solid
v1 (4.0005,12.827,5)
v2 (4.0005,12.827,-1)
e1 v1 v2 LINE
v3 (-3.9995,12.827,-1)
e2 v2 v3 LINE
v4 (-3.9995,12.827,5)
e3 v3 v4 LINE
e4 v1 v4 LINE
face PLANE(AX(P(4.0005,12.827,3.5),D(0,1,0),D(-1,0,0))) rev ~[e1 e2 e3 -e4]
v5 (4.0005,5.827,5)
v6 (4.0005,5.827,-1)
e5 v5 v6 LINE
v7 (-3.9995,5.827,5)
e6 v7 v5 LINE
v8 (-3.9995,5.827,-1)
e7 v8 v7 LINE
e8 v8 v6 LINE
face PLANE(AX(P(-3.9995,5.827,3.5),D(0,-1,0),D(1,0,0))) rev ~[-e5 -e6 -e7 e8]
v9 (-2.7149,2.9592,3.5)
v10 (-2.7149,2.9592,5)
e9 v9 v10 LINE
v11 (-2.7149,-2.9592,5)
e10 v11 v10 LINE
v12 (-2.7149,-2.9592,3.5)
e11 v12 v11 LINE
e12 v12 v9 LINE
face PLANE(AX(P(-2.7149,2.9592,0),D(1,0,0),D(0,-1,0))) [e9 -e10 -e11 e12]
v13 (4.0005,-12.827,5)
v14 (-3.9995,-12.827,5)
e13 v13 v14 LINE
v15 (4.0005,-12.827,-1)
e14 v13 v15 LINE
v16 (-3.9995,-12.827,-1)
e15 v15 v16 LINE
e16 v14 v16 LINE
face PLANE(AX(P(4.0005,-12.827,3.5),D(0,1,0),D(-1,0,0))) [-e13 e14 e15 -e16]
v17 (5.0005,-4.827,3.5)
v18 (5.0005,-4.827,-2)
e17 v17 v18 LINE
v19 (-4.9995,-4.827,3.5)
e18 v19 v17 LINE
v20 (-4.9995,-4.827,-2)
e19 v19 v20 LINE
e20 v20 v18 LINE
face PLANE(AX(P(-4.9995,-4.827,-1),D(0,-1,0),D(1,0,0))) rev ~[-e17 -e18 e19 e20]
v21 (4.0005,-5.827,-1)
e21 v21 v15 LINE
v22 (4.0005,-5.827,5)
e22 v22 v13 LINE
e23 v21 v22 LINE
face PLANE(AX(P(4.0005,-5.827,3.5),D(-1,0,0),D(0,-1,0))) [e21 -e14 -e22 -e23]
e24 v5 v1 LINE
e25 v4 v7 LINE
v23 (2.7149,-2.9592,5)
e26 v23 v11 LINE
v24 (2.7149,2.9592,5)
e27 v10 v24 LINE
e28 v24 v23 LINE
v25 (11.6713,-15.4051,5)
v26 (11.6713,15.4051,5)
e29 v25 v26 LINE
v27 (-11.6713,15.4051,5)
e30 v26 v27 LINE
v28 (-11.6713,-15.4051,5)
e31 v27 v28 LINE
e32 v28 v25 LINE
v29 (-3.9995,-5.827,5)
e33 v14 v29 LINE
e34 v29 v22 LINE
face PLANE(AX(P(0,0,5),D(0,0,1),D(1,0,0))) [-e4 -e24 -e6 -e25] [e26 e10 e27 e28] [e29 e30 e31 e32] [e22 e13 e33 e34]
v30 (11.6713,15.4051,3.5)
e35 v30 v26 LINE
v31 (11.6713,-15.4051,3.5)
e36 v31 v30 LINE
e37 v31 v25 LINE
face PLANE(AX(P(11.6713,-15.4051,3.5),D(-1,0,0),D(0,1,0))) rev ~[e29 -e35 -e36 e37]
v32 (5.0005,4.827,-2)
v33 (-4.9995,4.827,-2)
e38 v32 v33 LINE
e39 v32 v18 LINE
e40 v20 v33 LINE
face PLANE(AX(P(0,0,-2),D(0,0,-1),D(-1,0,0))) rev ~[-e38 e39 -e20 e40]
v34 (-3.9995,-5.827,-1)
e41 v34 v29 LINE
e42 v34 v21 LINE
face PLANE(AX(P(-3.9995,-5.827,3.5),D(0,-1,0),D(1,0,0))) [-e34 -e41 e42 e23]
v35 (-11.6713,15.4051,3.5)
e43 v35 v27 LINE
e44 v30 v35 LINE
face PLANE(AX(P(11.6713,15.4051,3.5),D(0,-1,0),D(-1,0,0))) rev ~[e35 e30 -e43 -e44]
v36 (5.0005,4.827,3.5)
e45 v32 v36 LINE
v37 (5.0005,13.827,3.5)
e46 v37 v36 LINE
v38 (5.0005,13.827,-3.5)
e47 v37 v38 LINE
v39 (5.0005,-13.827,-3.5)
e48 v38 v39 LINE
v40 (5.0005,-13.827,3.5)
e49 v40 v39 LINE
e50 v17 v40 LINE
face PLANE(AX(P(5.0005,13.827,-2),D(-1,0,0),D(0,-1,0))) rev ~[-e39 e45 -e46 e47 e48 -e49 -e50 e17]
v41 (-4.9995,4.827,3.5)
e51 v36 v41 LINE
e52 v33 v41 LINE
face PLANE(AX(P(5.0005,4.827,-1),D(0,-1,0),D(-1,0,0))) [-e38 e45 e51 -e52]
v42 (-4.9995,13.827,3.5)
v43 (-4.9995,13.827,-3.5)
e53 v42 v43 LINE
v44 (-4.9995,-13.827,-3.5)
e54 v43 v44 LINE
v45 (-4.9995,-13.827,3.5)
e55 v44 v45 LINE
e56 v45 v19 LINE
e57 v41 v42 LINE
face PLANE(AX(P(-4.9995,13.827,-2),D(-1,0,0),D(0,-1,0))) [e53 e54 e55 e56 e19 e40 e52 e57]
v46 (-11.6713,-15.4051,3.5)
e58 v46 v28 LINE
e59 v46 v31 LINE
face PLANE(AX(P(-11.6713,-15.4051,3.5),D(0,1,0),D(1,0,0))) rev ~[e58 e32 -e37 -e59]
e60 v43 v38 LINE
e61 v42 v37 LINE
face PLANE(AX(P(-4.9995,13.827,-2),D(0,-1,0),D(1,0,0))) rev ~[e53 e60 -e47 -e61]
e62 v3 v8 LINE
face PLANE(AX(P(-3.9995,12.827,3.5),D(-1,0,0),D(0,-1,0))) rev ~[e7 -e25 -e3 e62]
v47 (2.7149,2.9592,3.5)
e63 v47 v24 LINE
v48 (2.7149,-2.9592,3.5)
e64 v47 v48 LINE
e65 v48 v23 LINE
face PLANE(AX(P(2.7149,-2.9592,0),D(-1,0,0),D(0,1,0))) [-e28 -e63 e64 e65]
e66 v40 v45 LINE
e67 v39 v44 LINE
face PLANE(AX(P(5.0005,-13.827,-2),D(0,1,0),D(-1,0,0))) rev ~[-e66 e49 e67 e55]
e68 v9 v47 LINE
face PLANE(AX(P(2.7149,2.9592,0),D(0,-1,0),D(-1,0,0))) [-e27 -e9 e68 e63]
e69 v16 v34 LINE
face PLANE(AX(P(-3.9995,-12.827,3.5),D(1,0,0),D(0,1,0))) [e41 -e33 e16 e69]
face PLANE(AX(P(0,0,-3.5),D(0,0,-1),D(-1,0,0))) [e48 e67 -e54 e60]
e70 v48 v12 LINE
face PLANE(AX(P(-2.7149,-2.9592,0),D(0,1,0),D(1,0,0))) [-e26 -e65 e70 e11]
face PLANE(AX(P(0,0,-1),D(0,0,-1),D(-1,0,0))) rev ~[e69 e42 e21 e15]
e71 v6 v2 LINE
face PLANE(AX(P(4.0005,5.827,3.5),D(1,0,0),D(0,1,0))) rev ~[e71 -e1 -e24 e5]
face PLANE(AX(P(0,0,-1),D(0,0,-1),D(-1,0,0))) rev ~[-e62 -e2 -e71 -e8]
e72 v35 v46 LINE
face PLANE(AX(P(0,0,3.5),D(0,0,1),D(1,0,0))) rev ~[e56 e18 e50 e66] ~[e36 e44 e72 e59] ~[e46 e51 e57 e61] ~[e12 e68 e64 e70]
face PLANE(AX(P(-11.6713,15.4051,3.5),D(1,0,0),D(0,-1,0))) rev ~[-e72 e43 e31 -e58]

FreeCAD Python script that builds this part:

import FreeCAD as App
import Part
import Sketcher
from FreeCAD import Vector
Q = App.Units.Quantity

doc = App.newDocument("Part")
body = doc.addObject("PartDesign::Body", "Body")

# Sketch on XY plane
sketch1 = body.newObject("Sketcher::SketchObject", "Sketch")
sketch1.AttachmentSupport = (doc.getObject("XY_Plane"), [""])
sketch1.MapMode = "FlatFace"
sketch1.AttachmentOffset = App.Placement(Vector(0, 0, 3.5), App.Rotation())
sketch1.addGeometry(Part.LineSegment(Vector(-12, 15, 0), Vector(-12, -15, 0)), False)
sketch1.addGeometry(Part.LineSegment(Vector(-12, -15, 0), Vector(12, -15, 0)), False)
sketch1.addGeometry(Part.LineSegment(Vector(12, -15, 0), Vector(12, 15, 0)), False)
sketch1.addGeometry(Part.LineSegment(Vector(12, 15, 0), Vector(-12, 15, 0)), False)
sketch1.addConstraint(Sketcher.Constraint("Coincident", 0, 2, 1, 1))
sketch1.addConstraint(Sketcher.Constraint("Coincident", 1, 2, 2, 1))
sketch1.addConstraint(Sketcher.Constraint("Coincident", 2, 2, 3, 1))
sketch1.addConstraint(Sketcher.Constraint("Coincident", 3, 2, 0, 1))
sketch1.addConstraint(Sketcher.Constraint("Vertical", 0))
sketch1.addConstraint(Sketcher.Constraint("Horizontal", 1))
sketch1.addConstraint(Sketcher.Constraint("Vertical", 2))
sketch1.addConstraint(Sketcher.Constraint("Horizontal", 3))
sketch1.addConstraint(Sketcher.Constraint("Symmetric", 0, 2, 2, 2, -1, 1))
sketch1.addConstraint(Sketcher.Constraint("DistanceX", 1, 1, 1, 2, Q("23.3426 mm")))
sketch1.addConstraint(Sketcher.Constraint("DistanceY", 0, 2, 0, 1, Q("30.8102 mm")))
pad1 = body.newObject("PartDesign::Pad", "Pad")
pad1.Profile = sketch1
pad1.Length = 1.5

# Sketch on XY plane
sketch2 = body.newObject("Sketcher::SketchObject", "Sketch001")
sketch2.AttachmentSupport = (doc.getObject("XY_Plane"), [""])
sketch2.MapMode = "FlatFace"
sketch2.addGeometry(Part.LineSegment(Vector(-3, 3, 0), Vector(3, 3, 0)), False)
sketch2.addGeometry(Part.LineSegment(Vector(3, 3, 0), Vector(3, -3, 0)), False)
sketch2.addGeometry(Part.LineSegment(Vector(3, -3, 0), Vector(-3, -3, 0)), False)
sketch2.addGeometry(Part.LineSegment(Vector(-3, -3, 0), Vector(-3, 3, 0)), False)
sketch2.addConstraint(Sketcher.Constraint("Coincident", 0, 2, 1, 1))
sketch2.addConstraint(Sketcher.Constraint("Coincident", 1, 2, 2, 1))
sketch2.addConstraint(Sketcher.Constraint("Coincident", 2, 2, 3, 1))
sketch2.addConstraint(Sketcher.Constraint("Coincident", 3, 2, 0, 1))
sketch2.addConstraint(Sketcher.Constraint("Horizontal", 0))
sketch2.addConstraint(Sketcher.Constraint("Vertical", 1))
sketch2.addConstraint(Sketcher.Constraint("Horizontal", 2))
sketch2.addConstraint(Sketcher.Constraint("Vertical", 3))
sketch2.addConstraint(Sketcher.Constraint("Symmetric", 0, 2, 2, 2, -1, 1))
sketch2.addConstraint(Sketcher.Constraint("DistanceX", 0, 1, 0, 2, Q("5.4298 mm")))
sketch2.addConstraint(Sketcher.Constraint("DistanceY", 1, 2, 1, 1, Q("5.9184 mm")))
pocket1 = body.newObject("PartDesign::Pocket", "Pocket")
pocket1.Profile = sketch2
pocket1.Length = 6
pocket1.Reversed = True

# Sketch on XY plane
sketch3 = body.newObject("Sketcher::SketchObject", "Sketch002")
sketch3.AttachmentSupport = (doc.getObject("XY_Plane"), [""])
sketch3.MapMode = "FlatFace"
sketch3.addGeometry(Part.LineSegment(Vector(-3.6, 12.7, 0), Vector(3.4, 12.7, 0)), False)
sketch3.addGeometry(Part.LineSegment(Vector(3.4, 12.7, 0), Vector(3.4, 7.7, 0)), False)
sketch3.addGeometry(Part.LineSegment(Vector(3.4, 7.7, 0), Vector(-3.6, 7.7, 0)), False)
sketch3.addGeometry(Part.LineSegment(Vector(-3.6, 7.7, 0), Vector(-3.6, 12.7, 0)), False)
sketch3.addGeometry(Part.LineSegment(Vector(3.4, -12.7, 0), Vector(-3.6, -12.7, 0)), False)
sketch3.addGeometry(Part.LineSegment(Vector(-3.6, -12.7, 0), Vector(-3.6, -7.7, 0)), False)
sketch3.addGeometry(Part.LineSegment(Vector(-3.6, -7.7, 0), Vector(3.4, -7.7, 0)), False)
sketch3.addGeometry(Part.LineSegment(Vector(3.4, -7.7, 0), Vector(3.4, -12.7, 0)), False)
sketch3.addConstraint(Sketcher.Constraint("Coincident", 0, 2, 1, 1))
sketch3.addConstraint(Sketcher.Constraint("Coincident", 1, 2, 2, 1))
sketch3.addConstraint(Sketcher.Constraint("Coincident", 2, 2, 3, 1))
sketch3.addConstraint(Sketcher.Constraint("Coincident", 3, 2, 0, 1))
sketch3.addConstraint(Sketcher.Constraint("Coincident", 4, 2, 5, 1))
sketch3.addConstraint(Sketcher.Constraint("Coincident", 5, 2, 6, 1))
sketch3.addConstraint(Sketcher.Constraint("Coincident", 6, 2, 7, 1))
sketch3.addConstraint(Sketcher.Constraint("Coincident", 7, 2, 4, 1))
sketch3.addConstraint(Sketcher.Constraint("Horizontal", 0))
sketch3.addConstraint(Sketcher.Constraint("Vertical", 1))
sketch3.addConstraint(Sketcher.Constraint("Horizontal", 2))
sketch3.addConstraint(Sketcher.Constraint("Vertical", 3))
sketch3.addConstraint(Sketcher.Constraint("Horizontal", 4))
sketch3.addConstraint(Sketcher.Constraint("Vertical", 5))
sketch3.addConstraint(Sketcher.Constraint("Horizontal", 6))
sketch3.addConstraint(Sketcher.Constraint("Vertical", 7))
sketch3.addConstraint(Sketcher.Constraint("Symmetric", 3, 2, 4, 2, -1))
sketch3.addConstraint(Sketcher.Constraint("Symmetric", 1, 2, 6, 2, -1))
sketch3.addConstraint(Sketcher.Constraint("DistanceX", 0, 1, 0, 2, Q("7 mm")))
sketch3.addConstraint(Sketcher.Constraint("DistanceY", 1, 2, 1, 1, Q("5 mm")))
sketch3.addConstraint(Sketcher.Constraint("DistanceY", -1, 1, 0, 2, Q("12.7 mm")))
sketch3.addConstraint(Sketcher.Constraint("DistanceX", -1, 1, 0, 2, Q("3.3528 mm")))
pocket2 = body.newObject("PartDesign::Pocket", "Pocket001")
pocket2.Profile = sketch3
pocket2.Length = 3.5
pocket2.Reversed = True

# Sketch on XY plane
sketch4 = body.newObject("Sketcher::SketchObject", "Sketch003")
sketch4.AttachmentSupport = (doc.getObject("XY_Plane"), [""])
sketch4.MapMode = "FlatFace"
sketch4.AttachmentOffset = App.Placement(Vector(0, 0, 3.5), App.Rotation())
sketch4.addGeometry(Part.LineSegment(Vector(4, -6, 0), Vector(4, -13, 0)), False)
sketch4.addGeometry(Part.LineSegment(Vector(4, -13, 0), Vector(-4, -13, 0)), False)
sketch4.addGeometry(Part.LineSegment(Vector(-4, -13, 0), Vector(-4, -6, 0)), False)
sketch4.addGeometry(Part.LineSegment(Vector(-4, -6, 0), Vector(4, -6, 0)), False)
sketch4.addGeometry(Part.LineSegment(Vector(-4, 13, 0), Vector(4, 13, 0)), False)
sketch4.addGeometry(Part.LineSegment(Vector(4, 13, 0), Vector(4, 6, 0)), False)
sketch4.addGeometry(Part.LineSegment(Vector(4, 6, 0), Vector(-4, 6, 0)), False)
sketch4.addGeometry(Part.LineSegment(Vector(-4, 6, 0), Vector(-4, 13, 0)), False)
sketch4.addConstraint(Sketcher.Constraint("Coincident", 0, 2, 1, 1))
sketch4.addConstraint(Sketcher.Constraint("Coincident", 1, 2, 2, 1))
sketch4.addConstraint(Sketcher.Constraint("Coincident", 2, 2, 3, 1))
sketch4.addConstraint(Sketcher.Constraint("Coincident", 3, 2, 0, 1))
sketch4.addConstraint(Sketcher.Constraint("Coincident", 4, 2, 5, 1))
sketch4.addConstraint(Sketcher.Constraint("Coincident", 5, 2, 6, 1))
sketch4.addConstraint(Sketcher.Constraint("Coincident", 6, 2, 7, 1))
sketch4.addConstraint(Sketcher.Constraint("Coincident", 7, 2, 4, 1))
sketch4.addConstraint(Sketcher.Constraint("Vertical", 0))
sketch4.addConstraint(Sketcher.Constraint("Horizontal", 1))
sketch4.addConstraint(Sketcher.Constraint("Vertical", 2))
sketch4.addConstraint(Sketcher.Constraint("Horizontal", 3))
sketch4.addConstraint(Sketcher.Constraint("Horizontal", 4))
sketch4.addConstraint(Sketcher.Constraint("Vertical", 5))
sketch4.addConstraint(Sketcher.Constraint("Horizontal", 6))
sketch4.addConstraint(Sketcher.Constraint("Vertical", 7))
sketch4.addConstraint(Sketcher.Constraint("Symmetric", 0, 2, 4, 2, -1))
sketch4.addConstraint(Sketcher.Constraint("Symmetric", 2, 2, 6, 2, -1))
sketch4.addConstraint(Sketcher.Constraint("DistanceX", 1, 2, 1, 1, Q("8 mm")))
sketch4.addConstraint(Sketcher.Constraint("DistanceY", 0, 2, 0, 1, Q("7 mm")))
sketch4.addConstraint(Sketcher.Constraint("DistanceY", 0, 2, 4, 2, Q("25.654 mm")))
sketch4.addConstraint(Sketcher.Constraint("DistanceX", -1, 1, 0, 2, Q("4.0005 mm")))
pad2 = body.newObject("PartDesign::Pad", "Pad001")
pad2.Profile = sketch4
pad2.Length = 4.5
pad2.Reversed = True

# Sketch on XY plane
sketch5 = body.newObject("Sketcher::SketchObject", "Sketch004")
sketch5.AttachmentSupport = (doc.getObject("XY_Plane"), [""])
sketch5.MapMode = "FlatFace"
sketch5.AttachmentOffset = App.Placement(Vector(0, 0, -1), App.Rotation())
sketch5.addGeometry(Part.LineSegment(Vector(-5, 5, 0), Vector(-5, 14, 0)), False)
sketch5.addGeometry(Part.LineSegment(Vector(-5, 14, 0), Vector(5, 14, 0)), False)
sketch5.addGeometry(Part.LineSegment(Vector(5, 14, 0), Vector(5, 5, 0)), False)
sketch5.addGeometry(Part.LineSegment(Vector(5, 5, 0), Vector(-5, 5, 0)), False)
sketch5.addGeometry(Part.LineSegment(Vector(-5, -14, 0), Vector(-5, -5, 0)), False)
sketch5.addGeometry(Part.LineSegment(Vector(-5, -5, 0), Vector(5, -5, 0)), False)
sketch5.addGeometry(Part.LineSegment(Vector(5, -5, 0), Vector(5, -14, 0)), False)
sketch5.addGeometry(Part.LineSegment(Vector(5, -14, 0), Vector(-5, -14, 0)), False)
sketch5.addConstraint(Sketcher.Constraint("Coincident", 0, 2, 1, 1))
sketch5.addConstraint(Sketcher.Constraint("Coincident", 1, 2, 2, 1))
sketch5.addConstraint(Sketcher.Constraint("Coincident", 2, 2, 3, 1))
sketch5.addConstraint(Sketcher.Constraint("Coincident", 3, 2, 0, 1))
sketch5.addConstraint(Sketcher.Constraint("Coincident", 4, 2, 5, 1))
sketch5.addConstraint(Sketcher.Constraint("Coincident", 5, 2, 6, 1))
sketch5.addConstraint(Sketcher.Constraint("Coincident", 6, 2, 7, 1))
sketch5.addConstraint(Sketcher.Constraint("Coincident", 7, 2, 4, 1))
sketch5.addConstraint(Sketcher.Constraint("Vertical", 0))
sketch5.addConstraint(Sketcher.Constraint("Horizontal", 1))
sketch5.addConstraint(Sketcher.Constraint("Vertical", 2))
sketch5.addConstraint(Sketcher.Constraint("Horizontal", 3))
sketch5.addConstraint(Sketcher.Constraint("Vertical", 4))
sketch5.addConstraint(Sketcher.Constraint("Horizontal", 5))
sketch5.addConstraint(Sketcher.Constraint("Vertical", 6))
sketch5.addConstraint(Sketcher.Constraint("Horizontal", 7))
sketch5.addConstraint(Sketcher.Constraint("Symmetric", 3, 2, 4, 2, -1))
sketch5.addConstraint(Sketcher.Constraint("Symmetric", 1, 2, 6, 2, -1))
sketch5.addConstraint(Sketcher.Constraint("DistanceX", 1, 1, 1, 2, Q("10 mm")))
sketch5.addConstraint(Sketcher.Constraint("DistanceY", 0, 1, 0, 2, Q("9 mm")))
sketch5.addConstraint(Sketcher.Constraint("DistanceY", -1, 1, 0, 2, Q("13.827 mm")))
sketch5.addConstraint(Sketcher.Constraint("DistanceX", 0, 2, -1, 1, Q("4.9995 mm")))
pad3 = body.newObject("PartDesign::Pad", "Pad002")
pad3.Profile = sketch5
pad3.Type = "TwoLengths"
pad3.Length = 1
pad3.Length2 = 4.5
pad3.Reversed = True

# Sketch on XY plane
sketch6 = body.newObject("Sketcher::SketchObject", "Sketch005")
sketch6.AttachmentSupport = (doc.getObject("XY_Plane"), [""])
sketch6.MapMode = "FlatFace"
sketch6.AttachmentOffset = App.Placement(Vector(0, 0, 3.5), App.Rotation())
sketch6.addGeometry(Part.LineSegment(Vector(4, -6, 0), Vector(4, -13, 0)), False)
sketch6.addGeometry(Part.LineSegment(Vector(4, -13, 0), Vector(-4, -13, 0)), False)
sketch6.addGeometry(Part.LineSegment(Vector(-4, -13, 0), Vector(-4, -6, 0)), False)
sketch6.addGeometry(Part.LineSegment(Vector(-4, -6, 0), Vector(4, -6, 0)), False)
sketch6.addGeometry(Part.LineSegment(Vector(-4, 13, 0), Vector(4, 13, 0)), False)
sketch6.addGeometry(Part.LineSegment(Vector(4, 13, 0), Vector(4, 6, 0)), False)
sketch6.addGeometry(Part.LineSegment(Vector(4, 6, 0), Vector(-4, 6, 0)), False)
sketch6.addGeometry(Part.LineSegment(Vector(-4, 6, 0), Vector(-4, 13, 0)), False)
sketch6.addConstraint(Sketcher.Constraint("Coincident", 0, 2, 1, 1))
sketch6.addConstraint(Sketcher.Constraint("Coincident", 1, 2, 2, 1))
sketch6.addConstraint(Sketcher.Constraint("Coincident", 2, 2, 3, 1))
sketch6.addConstraint(Sketcher.Constraint("Coincident", 3, 2, 0, 1))
sketch6.addConstraint(Sketcher.Constraint("Coincident", 4, 2, 5, 1))
sketch6.addConstraint(Sketcher.Constraint("Coincident", 5, 2, 6, 1))
sketch6.addConstraint(Sketcher.Constraint("Coincident", 6, 2, 7, 1))
sketch6.addConstraint(Sketcher.Constraint("Coincident", 7, 2, 4, 1))
sketch6.addConstraint(Sketcher.Constraint("Vertical", 0))
sketch6.addConstraint(Sketcher.Constraint("Horizontal", 1))
sketch6.addConstraint(Sketcher.Constraint("Vertical", 2))
sketch6.addConstraint(Sketcher.Constraint("Horizontal", 3))
sketch6.addConstraint(Sketcher.Constraint("Horizontal", 4))
sketch6.addConstraint(Sketcher.Constraint("Vertical", 5))
sketch6.addConstraint(Sketcher.Constraint("Horizontal", 6))
sketch6.addConstraint(Sketcher.Constraint("Vertical", 7))
sketch6.addConstraint(Sketcher.Constraint("Symmetric", 0, 2, 4, 2, -1))
sketch6.addConstraint(Sketcher.Constraint("Symmetric", 2, 2, 6, 2, -1))
sketch6.addConstraint(Sketcher.Constraint("DistanceX", 1, 2, 1, 1, Q("8 mm")))
sketch6.addConstraint(Sketcher.Constraint("DistanceY", 0, 2, 0, 1, Q("7 mm")))
sketch6.addConstraint(Sketcher.Constraint("DistanceY", 0, 2, 4, 2, Q("25.654 mm")))
sketch6.addConstraint(Sketcher.Constraint("DistanceX", -1, 1, 0, 2, Q("4.0005 mm")))
pocket3 = body.newObject("PartDesign::Pocket", "Pocket002")
pocket3.Profile = sketch6
pocket3.Type = "TwoLengths"
pocket3.Length = 4.5
pocket3.Length2 = 1.5

# Sketch on XY plane
sketch7 = body.newObject("Sketcher::SketchObject", "Sketch006")
sketch7.AttachmentSupport = (doc.getObject("XY_Plane"), [""])
sketch7.MapMode = "FlatFace"
sketch7.AttachmentOffset = App.Placement(Vector(0, 0, -2), App.Rotation())
sketch7.addGeometry(Part.LineSegment(Vector(-5, -14, 0), Vector(-5, 14, 0)), False)
sketch7.addGeometry(Part.LineSegment(Vector(-5, 14, 0), Vector(5, 14, 0)), False)
sketch7.addGeometry(Part.LineSegment(Vector(5, 14, 0), Vector(5, -14, 0)), False)
sketch7.addGeometry(Part.LineSegment(Vector(5, -14, 0), Vector(-5, -14, 0)), False)
sketch7.addConstraint(Sketcher.Constraint("Coincident", 0, 2, 1, 1))
sketch7.addConstraint(Sketcher.Constraint("Coincident", 1, 2, 2, 1))
sketch7.addConstraint(Sketcher.Constraint("Coincident", 2, 2, 3, 1))
sketch7.addConstraint(Sketcher.Constraint("Coincident", 3, 2, 0, 1))
sketch7.addConstraint(Sketcher.Constraint("Vertical", 0))
sketch7.addConstraint(Sketcher.Constraint("Horizontal", 1))
sketch7.addConstraint(Sketcher.Constraint("Vertical", 2))
sketch7.addConstraint(Sketcher.Constraint("Horizontal", 3))
sketch7.addConstraint(Sketcher.Constraint("DistanceX", 1, 1, 1, 2, Q("10 mm")))
sketch7.addConstraint(Sketcher.Constraint("DistanceY", 0, 1, 0, 2, Q("27.654 mm")))
sketch7.addConstraint(Sketcher.Constraint("DistanceY", -1, 1, 0, 2, Q("13.827 mm")))
sketch7.addConstraint(Sketcher.Constraint("DistanceX", 0, 2, -1, 1, Q("4.9995 mm")))
pad4 = body.newObject("PartDesign::Pad", "Pad003")
pad4.Profile = sketch7
pad4.Length = 1.5
pad4.Reversed = True

doc.recompute()
